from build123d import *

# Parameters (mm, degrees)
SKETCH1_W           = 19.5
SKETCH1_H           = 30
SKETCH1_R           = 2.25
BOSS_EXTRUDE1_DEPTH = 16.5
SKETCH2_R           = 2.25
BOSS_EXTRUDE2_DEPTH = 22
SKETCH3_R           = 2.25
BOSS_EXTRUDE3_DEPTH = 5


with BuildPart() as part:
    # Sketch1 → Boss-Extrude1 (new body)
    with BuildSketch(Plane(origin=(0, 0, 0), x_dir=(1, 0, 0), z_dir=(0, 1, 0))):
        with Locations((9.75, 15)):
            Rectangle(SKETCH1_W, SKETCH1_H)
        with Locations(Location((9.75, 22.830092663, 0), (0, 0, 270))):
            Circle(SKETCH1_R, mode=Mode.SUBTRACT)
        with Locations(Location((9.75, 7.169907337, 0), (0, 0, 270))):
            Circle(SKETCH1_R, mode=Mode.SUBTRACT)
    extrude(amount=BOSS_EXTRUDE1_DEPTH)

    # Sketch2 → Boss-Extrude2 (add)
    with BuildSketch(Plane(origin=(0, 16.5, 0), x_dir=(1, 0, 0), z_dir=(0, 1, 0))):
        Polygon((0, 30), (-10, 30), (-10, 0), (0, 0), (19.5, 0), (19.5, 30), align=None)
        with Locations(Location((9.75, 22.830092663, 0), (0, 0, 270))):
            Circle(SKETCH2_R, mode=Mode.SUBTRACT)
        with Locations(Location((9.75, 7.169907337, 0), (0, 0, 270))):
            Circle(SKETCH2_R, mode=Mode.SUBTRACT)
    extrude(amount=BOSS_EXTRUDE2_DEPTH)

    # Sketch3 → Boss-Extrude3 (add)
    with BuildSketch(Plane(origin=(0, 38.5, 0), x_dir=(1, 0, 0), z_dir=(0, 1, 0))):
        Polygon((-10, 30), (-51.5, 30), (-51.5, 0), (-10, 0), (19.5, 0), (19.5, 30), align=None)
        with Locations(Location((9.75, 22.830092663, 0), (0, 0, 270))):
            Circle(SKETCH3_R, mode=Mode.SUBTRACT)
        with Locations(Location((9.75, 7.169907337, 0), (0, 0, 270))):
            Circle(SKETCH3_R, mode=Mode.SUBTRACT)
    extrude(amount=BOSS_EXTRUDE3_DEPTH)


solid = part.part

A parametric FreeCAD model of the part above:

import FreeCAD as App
import Part
import Sketcher
from FreeCAD import Vector
Q = App.Units.Quantity


def add_polygon(sketch, points):
    """Adds a closed chain of lines whose ends are joined by coincident constraints."""
    first, n = sketch.GeometryCount, len(points)
    for a, b in zip(points, points[1:] + points[:1]):
        sketch.addGeometry(Part.LineSegment(App.Vector(*a, 0), App.Vector(*b, 0)), False)
    for i in range(n):
        sketch.addConstraint(Sketcher.Constraint("Coincident", first + i, 2, first + (i + 1) % n, 1))

doc = App.newDocument("Part")
body = doc.addObject("PartDesign::Body", "Body")

# Sketch on XZ plane
sketch1 = body.newObject("Sketcher::SketchObject", "Sketch")
sketch1.AttachmentSupport = (doc.getObject("XZ_Plane"), [""])
sketch1.MapMode = "FlatFace"
add_polygon(sketch1, [(0, -30), (0, 0), (19.5, 0), (19.5, -30)])  # lines 0-3
sketch1.addGeometry(Part.Circle(Vector(9.8, -7.2, 0), Vector(0, 0, 1), 2.2), False)  # 4
sketch1.addGeometry(Part.Circle(Vector(9.8, -22.8, 0), Vector(0, 0, 1), 2.2), False)  # 5
sketch1.addConstraint([
    Sketcher.Constraint("Vertical", 0),
    Sketcher.Constraint("Horizontal", 1),
    Sketcher.Constraint("Vertical", 2),
    Sketcher.Constraint("Horizontal", 3),
    Sketcher.Constraint("Coincident", 0, 2, -1, 1),
    Sketcher.Constraint("Equal", 4, 5),
    Sketcher.Constraint("Vertical", 4, 3, 5, 3),
    Sketcher.Constraint("Diameter", 4, Q("4.5 mm")),
    Sketcher.Constraint("DistanceY", 0, 1, 0, 2, Q("30 mm")),
    Sketcher.Constraint("DistanceX", 1, 1, 1, 2, Q("19.5 mm")),
    Sketcher.Constraint("DistanceX", -1, 1, 4, 3, Q("9.75 mm")),
    Sketcher.Constraint("DistanceY", 4, 3, -1, 1, Q("7.169907 mm")),
    Sketcher.Constraint("DistanceY", 5, 3, -1, 1, Q("22.830093 mm")),
])
pad1 = body.newObject("PartDesign::Pad", "Pad")
pad1.Profile = sketch1
pad1.Length = 16.5
pad1.Reversed = True

# Sketch on XZ plane
sketch2 = body.newObject("Sketcher::SketchObject", "Sketch001")
sketch2.AttachmentSupport = (doc.getObject("XZ_Plane"), [""])
sketch2.MapMode = "FlatFace"
sketch2.AttachmentOffset = App.Placement(Vector(0, 0, -16.5), App.Rotation())
add_polygon(sketch2, [(-10, -30), (-10, 0), (19.5, 0), (19.5, -30)])  # lines 0-3
sketch2.addGeometry(Part.Circle(Vector(9.8, -7.2, 0), Vector(0, 0, 1), 2.2), False)  # 4
sketch2.addGeometry(Part.Circle(Vector(9.8, -22.8, 0), Vector(0, 0, 1), 2.2), False)  # 5
sketch2.addConstraint([
    Sketcher.Constraint("Vertical", 0),
    Sketcher.Constraint("Horizontal", 1),
    Sketcher.Constraint("Vertical", 2),
    Sketcher.Constraint("Horizontal", 3),
    Sketcher.Constraint("Equal", 4, 5),
    Sketcher.Constraint("PointOnObject", 0, 2, -1),
    Sketcher.Constraint("Vertical", 4, 3, 5, 3),
    Sketcher.Constraint("Diameter", 4, Q("4.5 mm")),
    Sketcher.Constraint("DistanceY", 0, 1, 0, 2, Q("30 mm")),
    Sketcher.Constraint("DistanceX", 1, 1, 1, 2, Q("29.5 mm")),
    Sketcher.Constraint("DistanceX", 0, 2, -1, 1, Q("10 mm")),
    Sketcher.Constraint("DistanceX", -1, 1, 4, 3, Q("9.75 mm")),
    Sketcher.Constraint("DistanceY", 4, 3, -1, 1, Q("7.169907 mm")),
    Sketcher.Constraint("DistanceY", 5, 3, -1, 1, Q("22.830093 mm")),
])
pad2 = body.newObject("PartDesign::Pad", "Pad001")
pad2.Profile = sketch2
pad2.Length = 22
pad2.Reversed = True

# Sketch on XZ plane
sketch3 = body.newObject("Sketcher::SketchObject", "Sketch002")
sketch3.AttachmentSupport = (doc.getObject("XZ_Plane"), [""])
sketch3.MapMode = "FlatFace"
sketch3.AttachmentOffset = App.Placement(Vector(0, 0, -38.5), App.Rotation())
add_polygon(sketch3, [(-51.5, -30), (-51.5, 0), (19.5, 0), (19.5, -30)])  # lines 0-3
sketch3.addGeometry(Part.Circle(Vector(9.8, -7.2, 0), Vector(0, 0, 1), 2.2), False)  # 4
sketch3.addGeometry(Part.Circle(Vector(9.8, -22.8, 0), Vector(0, 0, 1), 2.2), False)  # 5
sketch3.addConstraint([
    Sketcher.Constraint("Vertical", 0),
    Sketcher.Constraint("Horizontal", 1),
    Sketcher.Constraint("Vertical", 2),
    Sketcher.Constraint("Horizontal", 3),
    Sketcher.Constraint("Equal", 4, 5),
    Sketcher.Constraint("PointOnObject", 0, 2, -1),
    Sketcher.Constraint("Vertical", 4, 3, 5, 3),
    Sketcher.Constraint("Diameter", 4, Q("4.5 mm")),
    Sketcher.Constraint("DistanceX", 1, 1, 1, 2, Q("71 mm")),
    Sketcher.Constraint("DistanceY", 0, 1, 0, 2, Q("30 mm")),
    Sketcher.Constraint("DistanceX", 0, 2, -1, 1, Q("51.5 mm")),
    Sketcher.Constraint("DistanceX", -1, 1, 4, 3, Q("9.75 mm")),
    Sketcher.Constraint("DistanceY", 4, 3, -1, 1, Q("7.169907 mm")),
    Sketcher.Constraint("DistanceY", 5, 3, -1, 1, Q("22.830093 mm")),
])
pad3 = body.newObject("PartDesign::Pad", "Pad002")
pad3.Profile = sketch3
pad3.Length = 5
pad3.Reversed = True

doc.recompute()
